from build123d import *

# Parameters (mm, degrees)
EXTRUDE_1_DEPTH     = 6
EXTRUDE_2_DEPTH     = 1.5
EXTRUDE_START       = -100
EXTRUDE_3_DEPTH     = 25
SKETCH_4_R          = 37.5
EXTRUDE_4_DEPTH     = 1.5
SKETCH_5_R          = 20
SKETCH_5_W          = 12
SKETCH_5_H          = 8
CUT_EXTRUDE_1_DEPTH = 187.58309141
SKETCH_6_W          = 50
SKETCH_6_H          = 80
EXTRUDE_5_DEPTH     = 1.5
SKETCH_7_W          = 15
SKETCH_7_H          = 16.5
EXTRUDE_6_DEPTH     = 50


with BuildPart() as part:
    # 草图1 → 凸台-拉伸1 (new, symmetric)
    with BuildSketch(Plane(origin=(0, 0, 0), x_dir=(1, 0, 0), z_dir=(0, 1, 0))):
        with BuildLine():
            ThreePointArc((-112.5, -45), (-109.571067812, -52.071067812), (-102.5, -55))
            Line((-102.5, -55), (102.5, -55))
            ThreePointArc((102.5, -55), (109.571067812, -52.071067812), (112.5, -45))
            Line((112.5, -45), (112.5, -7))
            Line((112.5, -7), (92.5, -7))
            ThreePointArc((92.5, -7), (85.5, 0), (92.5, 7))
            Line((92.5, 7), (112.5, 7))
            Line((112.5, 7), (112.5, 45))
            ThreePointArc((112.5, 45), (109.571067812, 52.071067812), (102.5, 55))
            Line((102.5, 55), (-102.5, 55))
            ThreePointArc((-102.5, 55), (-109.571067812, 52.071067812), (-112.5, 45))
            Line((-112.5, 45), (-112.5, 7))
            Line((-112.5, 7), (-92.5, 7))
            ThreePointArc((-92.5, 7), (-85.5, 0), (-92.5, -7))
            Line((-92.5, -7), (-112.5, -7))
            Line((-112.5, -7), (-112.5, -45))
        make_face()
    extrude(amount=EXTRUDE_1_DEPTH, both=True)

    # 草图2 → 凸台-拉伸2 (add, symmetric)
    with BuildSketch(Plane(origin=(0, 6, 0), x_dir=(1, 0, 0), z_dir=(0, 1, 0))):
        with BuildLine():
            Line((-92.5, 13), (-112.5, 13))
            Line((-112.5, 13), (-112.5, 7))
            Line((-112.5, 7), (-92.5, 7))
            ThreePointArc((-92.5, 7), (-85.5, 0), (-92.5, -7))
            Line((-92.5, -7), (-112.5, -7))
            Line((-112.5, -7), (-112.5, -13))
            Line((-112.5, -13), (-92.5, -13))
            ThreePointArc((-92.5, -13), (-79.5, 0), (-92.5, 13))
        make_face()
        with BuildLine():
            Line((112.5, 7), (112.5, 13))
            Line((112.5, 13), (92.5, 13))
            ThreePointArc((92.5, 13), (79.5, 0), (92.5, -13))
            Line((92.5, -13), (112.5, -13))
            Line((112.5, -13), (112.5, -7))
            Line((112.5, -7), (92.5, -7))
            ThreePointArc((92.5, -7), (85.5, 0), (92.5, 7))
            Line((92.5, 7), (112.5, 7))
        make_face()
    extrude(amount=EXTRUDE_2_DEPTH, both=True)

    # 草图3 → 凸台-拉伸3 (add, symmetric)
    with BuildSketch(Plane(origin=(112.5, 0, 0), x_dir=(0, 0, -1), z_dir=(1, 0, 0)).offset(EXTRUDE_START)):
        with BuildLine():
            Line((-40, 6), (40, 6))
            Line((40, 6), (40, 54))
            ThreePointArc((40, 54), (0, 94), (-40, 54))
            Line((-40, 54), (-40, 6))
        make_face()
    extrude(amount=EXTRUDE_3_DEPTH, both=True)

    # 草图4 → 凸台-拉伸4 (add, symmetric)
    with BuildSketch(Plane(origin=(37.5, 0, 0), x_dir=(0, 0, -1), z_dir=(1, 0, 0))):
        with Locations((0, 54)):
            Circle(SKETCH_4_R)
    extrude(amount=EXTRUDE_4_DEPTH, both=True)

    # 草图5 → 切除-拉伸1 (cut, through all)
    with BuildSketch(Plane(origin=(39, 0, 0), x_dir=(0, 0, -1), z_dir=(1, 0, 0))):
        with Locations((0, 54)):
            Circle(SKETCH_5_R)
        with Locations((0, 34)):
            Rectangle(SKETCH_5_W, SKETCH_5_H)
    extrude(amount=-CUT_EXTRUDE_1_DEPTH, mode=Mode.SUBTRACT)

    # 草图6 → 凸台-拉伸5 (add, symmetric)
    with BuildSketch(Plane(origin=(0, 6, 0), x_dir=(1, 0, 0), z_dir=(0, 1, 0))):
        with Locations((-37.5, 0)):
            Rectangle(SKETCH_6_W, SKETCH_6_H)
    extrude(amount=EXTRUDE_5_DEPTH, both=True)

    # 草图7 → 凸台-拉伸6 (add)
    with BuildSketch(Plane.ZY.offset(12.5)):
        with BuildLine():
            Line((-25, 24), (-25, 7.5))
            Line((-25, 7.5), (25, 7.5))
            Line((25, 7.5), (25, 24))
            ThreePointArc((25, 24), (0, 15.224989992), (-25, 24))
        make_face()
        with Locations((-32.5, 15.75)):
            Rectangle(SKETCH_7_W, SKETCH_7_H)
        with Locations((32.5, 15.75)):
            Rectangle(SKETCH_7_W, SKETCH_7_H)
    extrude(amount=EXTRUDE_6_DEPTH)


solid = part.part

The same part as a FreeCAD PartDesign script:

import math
import FreeCAD as App
import Part
import Sketcher
from FreeCAD import Vector

doc = App.newDocument("Part")
body = doc.addObject("PartDesign::Body", "Body")

# Sketch on XZ plane
sketch1 = body.newObject("Sketcher::SketchObject", "Sketch")
sketch1.AttachmentSupport = (doc.getObject("XZ_Plane"), [""])
sketch1.MapMode = "FlatFace"
sketch1.addGeometry(Part.ArcOfCircle(Part.Circle(Vector(-102, 45, 0), Vector(0, 0, 1), 10), math.radians(90), math.radians(180)), False)
sketch1.addGeometry(Part.LineSegment(Vector(-102, 55, 0), Vector(102, 55, 0)), False)
sketch1.addGeometry(Part.ArcOfCircle(Part.Circle(Vector(102, 45, 0), Vector(0, 0, 1), 10), math.radians(0), math.radians(90)), False)
sketch1.addGeometry(Part.LineSegment(Vector(112, 45, 0), Vector(112, 7, 0)), False)
sketch1.addGeometry(Part.LineSegment(Vector(112, 7, 0), Vector(92, 7, 0)), False)
sketch1.addGeometry(Part.ArcOfCircle(Part.Circle(Vector(92, 0, 0), Vector(0, 0, 1), 7), math.radians(90), math.radians(270)), False)
sketch1.addGeometry(Part.LineSegment(Vector(92, -7, 0), Vector(112, -7, 0)), False)
sketch1.addGeometry(Part.LineSegment(Vector(112, -7, 0), Vector(112, -45, 0)), False)
sketch1.addGeometry(Part.ArcOfCircle(Part.Circle(Vector(102, -45, 0), Vector(0, 0, 1), 10), math.radians(-90), math.radians(0)), False)
sketch1.addGeometry(Part.LineSegment(Vector(102, -55, 0), Vector(-102, -55, 0)), False)
sketch1.addGeometry(Part.ArcOfCircle(Part.Circle(Vector(-102, -45, 0), Vector(0, 0, 1), 10), math.radians(180), math.radians(270)), False)
sketch1.addGeometry(Part.LineSegment(Vector(-112, -45, 0), Vector(-112, -7, 0)), False)
sketch1.addGeometry(Part.LineSegment(Vector(-112, -7, 0), Vector(-92, -7, 0)), False)
sketch1.addGeometry(Part.ArcOfCircle(Part.Circle(Vector(-92, 0, 0), Vector(0, 0, 1), 7), math.radians(-90), math.radians(90)), False)
sketch1.addGeometry(Part.LineSegment(Vector(-92, 7, 0), Vector(-112, 7, 0)), False)
sketch1.addGeometry(Part.LineSegment(Vector(-112, 7, 0), Vector(-112, 45, 0)), False)
sketch1.addConstraint(Sketcher.Constraint("Tangent", 0, 1, 1, 1))
sketch1.addConstraint(Sketcher.Constraint("Tangent", 1, 2, 2, 2))
sketch1.addConstraint(Sketcher.Constraint("Tangent", 2, 1, 3, 1))
sketch1.addConstraint(Sketcher.Constraint("Coincident", 3, 2, 4, 1))
sketch1.addConstraint(Sketcher.Constraint("Tangent", 4, 2, 5, 1))
sketch1.addConstraint(Sketcher.Constraint("Tangent", 5, 2, 6, 1))
sketch1.addConstraint(Sketcher.Constraint("Coincident", 6, 2, 7, 1))
sketch1.addConstraint(Sketcher.Constraint("Tangent", 7, 2, 8, 2))
sketch1.addConstraint(Sketcher.Constraint("Tangent", 8, 1, 9, 1))
sketch1.addConstraint(Sketcher.Constraint("Tangent", 9, 2, 10, 2))
sketch1.addConstraint(Sketcher.Constraint("Tangent", 10, 1, 11, 1))
sketch1.addConstraint(Sketcher.Constraint("Coincident", 11, 2, 12, 1))
sketch1.addConstraint(Sketcher.Constraint("Tangent", 12, 2, 13, 1))
sketch1.addConstraint(Sketcher.Constraint("Tangent", 13, 2, 14, 1))
sketch1.addConstraint(Sketcher.Constraint("Coincident", 14, 2, 15, 1))
sketch1.addConstraint(Sketcher.Constraint("Tangent", 15, 2, 0, 2))
sketch1.addConstraint(Sketcher.Constraint("Horizontal", 1))
sketch1.addConstraint(Sketcher.Constraint("Vertical", 3))
sketch1.addConstraint(Sketcher.Constraint("Horizontal", 4))
sketch1.addConstraint(Sketcher.Constraint("Horizontal", 6))
sketch1.addConstraint(Sketcher.Constraint("Vertical", 7))
sketch1.addConstraint(Sketcher.Constraint("Horizontal", 9))
sketch1.addConstraint(Sketcher.Constraint("Vertical", 11))
sketch1.addConstraint(Sketcher.Constraint("Horizontal", 12))
sketch1.addConstraint(Sketcher.Constraint("Horizontal", 14))
sketch1.addConstraint(Sketcher.Constraint("Vertical", 15))
sketch1.addConstraint(Sketcher.Constraint("Equal", 0, 2))
sketch1.addConstraint(Sketcher.Constraint("Equal", 2, 8))
sketch1.addConstraint(Sketcher.Constraint("Equal", 8, 10))
sketch1.addConstraint(Sketcher.Constraint("Equal", 5, 13))
sketch1.addConstraint(Sketcher.Constraint("Symmetric", 0, 3, 8, 3, -1, 1))
sketch1.addConstraint(Sketcher.Constraint("Symmetric", 5, 3, 13, 3, -1, 1))
sketch1.addConstraint(Sketcher.Constraint("Symmetric", 6, 2, 11, 2, -2))
sketch1.addConstraint(Sketcher.Constraint("Vertical", 2, 3, 8, 3))
sketch1.addConstraint(Sketcher.Constraint("Radius", 0, 10.0))
sketch1.addConstraint(Sketcher.Constraint("Radius", 5, 7.0))
sketch1.addConstraint(Sketcher.Constraint("DistanceX", 1, 1, 1, 2, 205.0))
sketch1.addConstraint(Sketcher.Constraint("DistanceX", 4, 2, 4, 1, 20.0))
sketch1.addConstraint(Sketcher.Constraint("DistanceY", 3, 2, 3, 1, 38.0))
pad1 = body.newObject("PartDesign::Pad", "Pad")
pad1.Profile = sketch1
pad1.Length = 12
pad1.Midplane = True

# Sketch on XZ plane
sketch2 = body.newObject("Sketcher::SketchObject", "Sketch001")
sketch2.AttachmentSupport = (doc.getObject("XZ_Plane"), [""])
sketch2.MapMode = "FlatFace"
sketch2.AttachmentOffset = App.Placement(Vector(0, 0, -6), App.Rotation())
sketch2.addGeometry(Part.LineSegment(Vector(-92, -13, 0), Vector(-112, -13, 0)), False)
sketch2.addGeometry(Part.LineSegment(Vector(-112, -13, 0), Vector(-112, -7, 0)), False)
sketch2.addGeometry(Part.LineSegment(Vector(-112, -7, 0), Vector(-92, -7, 0)), False)
sketch2.addGeometry(Part.ArcOfCircle(Part.Circle(Vector(-92, 0, 0), Vector(0, 0, 1), 7), math.radians(-90), math.radians(90)), False)
sketch2.addGeometry(Part.LineSegment(Vector(-92, 7, 0), Vector(-112, 7, 0)), False)
sketch2.addGeometry(Part.LineSegment(Vector(-112, 7, 0), Vector(-112, 13, 0)), False)
sketch2.addGeometry(Part.LineSegment(Vector(-112, 13, 0), Vector(-92, 13, 0)), False)
sketch2.addGeometry(Part.ArcOfCircle(Part.Circle(Vector(-92, 0, 0), Vector(0, 0, 1), 13), math.radians(-90), math.radians(90)), False)
sketch2.addGeometry(Part.LineSegment(Vector(112, -7, 0), Vector(112, -13, 0)), False)
sketch2.addGeometry(Part.LineSegment(Vector(112, -13, 0), Vector(92, -13, 0)), False)
sketch2.addGeometry(Part.ArcOfCircle(Part.Circle(Vector(92, 0, 0), Vector(0, 0, 1), 13), math.radians(90), math.radians(270)), False)
sketch2.addGeometry(Part.LineSegment(Vector(92, 13, 0), Vector(112, 13, 0)), False)
sketch2.addGeometry(Part.LineSegment(Vector(112, 13, 0), Vector(112, 7, 0)), False)
sketch2.addGeometry(Part.LineSegment(Vector(112, 7, 0), Vector(92, 7, 0)), False)
sketch2.addGeometry(Part.ArcOfCircle(Part.Circle(Vector(92, 0, 0), Vector(0, 0, 1), 7), math.radians(90), math.radians(270)), False)
sketch2.addGeometry(Part.LineSegment(Vector(92, -7, 0), Vector(112, -7, 0)), False)
sketch2.addConstraint(Sketcher.Constraint("Coincident", 0, 2, 1, 1))
sketch2.addConstraint(Sketcher.Constraint("Coincident", 1, 2, 2, 1))
sketch2.addConstraint(Sketcher.Constraint("Tangent", 2, 2, 3, 1))
sketch2.addConstraint(Sketcher.Constraint("Tangent", 3, 2, 4, 1))
sketch2.addConstraint(Sketcher.Constraint("Coincident", 4, 2, 5, 1))
sketch2.addConstraint(Sketcher.Constraint("Coincident", 5, 2, 6, 1))
sketch2.addConstraint(Sketcher.Constraint("Tangent", 6, 2, 7, 2))
sketch2.addConstraint(Sketcher.Constraint("Tangent", 7, 1, 0, 1))
sketch2.addConstraint(Sketcher.Constraint("Coincident", 8, 2, 9, 1))
sketch2.addConstraint(Sketcher.Constraint("Tangent", 9, 2, 10, 2))
sketch2.addConstraint(Sketcher.Constraint("Tangent", 10, 1, 11, 1))
sketch2.addConstraint(Sketcher.Constraint("Coincident", 11, 2, 12, 1))
sketch2.addConstraint(Sketcher.Constraint("Coincident", 12, 2, 13, 1))
sketch2.addConstraint(Sketcher.Constraint("Tangent", 13, 2, 14, 1))
sketch2.addConstraint(Sketcher.Constraint("Tangent", 14, 2, 15, 1))
sketch2.addConstraint(Sketcher.Constraint("Coincident", 15, 2, 8, 1))
sketch2.addConstraint(Sketcher.Constraint("Horizontal", 0))
sketch2.addConstraint(Sketcher.Constraint("Vertical", 1))
sketch2.addConstraint(Sketcher.Constraint("Horizontal", 2))
sketch2.addConstraint(Sketcher.Constraint("Horizontal", 4))
sketch2.addConstraint(Sketcher.Constraint("Vertical", 5))
sketch2.addConstraint(Sketcher.Constraint("Horizontal", 6))
sketch2.addConstraint(Sketcher.Constraint("Vertical", 8))
sketch2.addConstraint(Sketcher.Constraint("Horizontal", 9))
sketch2.addConstraint(Sketcher.Constraint("Horizontal", 11))
sketch2.addConstraint(Sketcher.Constraint("Vertical", 12))
sketch2.addConstraint(Sketcher.Constraint("Horizontal", 13))
sketch2.addConstraint(Sketcher.Constraint("Horizontal", 15))
sketch2.addConstraint(Sketcher.Constraint("Coincident", 7, 3, 3, 3))
sketch2.addConstraint(Sketcher.Constraint("Coincident", 14, 3, 10, 3))
sketch2.addConstraint(Sketcher.Constraint("Equal", 7, 10))
sketch2.addConstraint(Sketcher.Constraint("Equal", 3, 14))
sketch2.addConstraint(Sketcher.Constraint("Symmetric", 3, 3, 10, 3, -1, 1))
sketch2.addConstraint(Sketcher.Constraint("Symmetric", 0, 2, 8, 2, -2))
sketch2.addConstraint(Sketcher.Constraint("Vertical", 1, 2, 4, 2))
sketch2.addConstraint(Sketcher.Constraint("Vertical", 8, 2, 11, 2))
sketch2.addConstraint(Sketcher.Constraint("Radius", 3, 7.0))
sketch2.addConstraint(Sketcher.Constraint("Radius", 7, 13.0))
sketch2.addConstraint(Sketcher.Constraint("DistanceX", 0, 2, 0, 1, 20.0))
sketch2.addConstraint(Sketcher.Constraint("DistanceX", 3, 3, 10, 3, 185.0))
pad2 = body.newObject("PartDesign::Pad", "Pad001")
pad2.Profile = sketch2
pad2.Length = 3
pad2.Midplane = True

# Sketch on YZ plane
sketch3 = body.newObject("Sketcher::SketchObject", "Sketch002")
sketch3.AttachmentSupport = (doc.getObject("YZ_Plane"), [""])
sketch3.MapMode = "FlatFace"
sketch3.AttachmentOffset = App.Placement(Vector(0, 0, 12.5), App.Rotation())
sketch3.addGeometry(Part.LineSegment(Vector(6, 40, 0), Vector(6, -40, 0)), False)
sketch3.addGeometry(Part.LineSegment(Vector(6, -40, 0), Vector(54, -40, 0)), False)
sketch3.addGeometry(Part.ArcOfCircle(Part.Circle(Vector(54, 0, 0), Vector(0, 0, 1), 40), math.radians(-90), math.radians(90)), False)
sketch3.addGeometry(Part.LineSegment(Vector(54, 40, 0), Vector(6, 40, 0)), False)
sketch3.addConstraint(Sketcher.Constraint("Coincident", 0, 2, 1, 1))
sketch3.addConstraint(Sketcher.Constraint("Tangent", 1, 2, 2, 1))
sketch3.addConstraint(Sketcher.Constraint("Tangent", 2, 2, 3, 1))
sketch3.addConstraint(Sketcher.Constraint("Coincident", 3, 2, 0, 1))
sketch3.addConstraint(Sketcher.Constraint("Vertical", 0))
sketch3.addConstraint(Sketcher.Constraint("Horizontal", 1))
sketch3.addConstraint(Sketcher.Constraint("Horizontal", 3))
sketch3.addConstraint(Sketcher.Constraint("PointOnObject", 2, 3, -1))
sketch3.addConstraint(Sketcher.Constraint("Radius", 2, 40.0))
sketch3.addConstraint(Sketcher.Constraint("DistanceX", 1, 1, 1, 2, 48.0))
sketch3.addConstraint(Sketcher.Constraint("DistanceX", -1, 1, 2, 3, 54.0))
pad3 = body.newObject("PartDesign::Pad", "Pad002")
pad3.Profile = sketch3
pad3.Length = 50
pad3.Midplane = True

# Sketch on YZ plane
sketch4 = body.newObject("Sketcher::SketchObject", "Sketch003")
sketch4.AttachmentSupport = (doc.getObject("YZ_Plane"), [""])
sketch4.MapMode = "FlatFace"
sketch4.AttachmentOffset = App.Placement(Vector(0, 0, 37.5), App.Rotation())
sketch4.addGeometry(Part.Circle(Vector(54, 0, 0), Vector(0, 0, 1), 38), False)
sketch4.addConstraint(Sketcher.Constraint("PointOnObject", 0, 3, -1))
sketch4.addConstraint(Sketcher.Constraint("Diameter", 0, 75.0))
sketch4.addConstraint(Sketcher.Constraint("DistanceX", -1, 1, 0, 3, 54.0))
pad4 = body.newObject("PartDesign::Pad", "Pad003")
pad4.Profile = sketch4
pad4.Length = 3
pad4.Midplane = True

# Sketch on YZ plane
sketch5 = body.newObject("Sketcher::SketchObject", "Sketch004")
sketch5.AttachmentSupport = (doc.getObject("YZ_Plane"), [""])
sketch5.MapMode = "FlatFace"
sketch5.AttachmentOffset = App.Placement(Vector(0, 0, 39), App.Rotation())
sketch5.addGeometry(Part.ArcOfCircle(Part.Circle(Vector(54, 0, 0), Vector(0, 0, 1), 20), math.radians(-163), math.radians(163)), False)
sketch5.addGeometry(Part.LineSegment(Vector(34.9, 6, 0), Vector(30, 6, 0)), False)
sketch5.addGeometry(Part.LineSegment(Vector(30, 6, 0), Vector(30, -6, 0)), False)
sketch5.addGeometry(Part.LineSegment(Vector(30, -6, 0), Vector(34.9, -6, 0)), False)
sketch5.addConstraint(Sketcher.Constraint("Coincident", 0, 2, 1, 1))
sketch5.addConstraint(Sketcher.Constraint("Coincident", 1, 2, 2, 1))
sketch5.addConstraint(Sketcher.Constraint("Coincident", 2, 2, 3, 1))
sketch5.addConstraint(Sketcher.Constraint("Coincident", 3, 2, 0, 1))
sketch5.addConstraint(Sketcher.Constraint("Horizontal", 1))
sketch5.addConstraint(Sketcher.Constraint("Vertical", 2))
sketch5.addConstraint(Sketcher.Constraint("Horizontal", 3))
sketch5.addConstraint(Sketcher.Constraint("Symmetric", 0, 2, 3, 2, -1))
sketch5.addConstraint(Sketcher.Constraint("Radius", 0, 20.0))
sketch5.addConstraint(Sketcher.Constraint("DistanceY", 2, 2, 2, 1, 12.0))
sketch5.addConstraint(Sketcher.Constraint("DistanceX", -1, 1, 0, 3, 54.0))
sketch5.addConstraint(Sketcher.Constraint("DistanceX", -1, 1, 1, 2, 30.0))
pocket1 = body.newObject("PartDesign::Pocket", "Pocket")
pocket1.Profile = sketch5
pocket1.Type = "ThroughAll"

# Sketch on XZ plane
sketch6 = body.newObject("Sketcher::SketchObject", "Sketch005")
sketch6.AttachmentSupport = (doc.getObject("XZ_Plane"), [""])
sketch6.MapMode = "FlatFace"
sketch6.AttachmentOffset = App.Placement(Vector(0, 0, -6), App.Rotation())
sketch6.addGeometry(Part.LineSegment(Vector(-62, -40, 0), Vector(-62, 40, 0)), False)
sketch6.addGeometry(Part.LineSegment(Vector(-62, 40, 0), Vector(-12, 40, 0)), False)
sketch6.addGeometry(Part.LineSegment(Vector(-12, 40, 0), Vector(-12, -40, 0)), False)
sketch6.addGeometry(Part.LineSegment(Vector(-12, -40, 0), Vector(-62, -40, 0)), False)
sketch6.addConstraint(Sketcher.Constraint("Coincident", 0, 2, 1, 1))
sketch6.addConstraint(Sketcher.Constraint("Coincident", 1, 2, 2, 1))
sketch6.addConstraint(Sketcher.Constraint("Coincident", 2, 2, 3, 1))
sketch6.addConstraint(Sketcher.Constraint("Coincident", 3, 2, 0, 1))
sketch6.addConstraint(Sketcher.Constraint("Vertical", 0))
sketch6.addConstraint(Sketcher.Constraint("Horizontal", 1))
sketch6.addConstraint(Sketcher.Constraint("Vertical", 2))
sketch6.addConstraint(Sketcher.Constraint("Horizontal", 3))
sketch6.addConstraint(Sketcher.Constraint("DistanceX", 1, 1, 1, 2, 50.0))
sketch6.addConstraint(Sketcher.Constraint("DistanceY", 0, 1, 0, 2, 80.0))
sketch6.addConstraint(Sketcher.Constraint("DistanceY", -1, 1, 0, 2, 40.0))
sketch6.addConstraint(Sketcher.Constraint("DistanceX", 0, 2, -1, 1, 62.5))
pad5 = body.newObject("PartDesign::Pad", "Pad004")
pad5.Profile = sketch6
pad5.Length = 3
pad5.Midplane = True

# Sketch on YZ plane
sketch7 = body.newObject("Sketcher::SketchObject", "Sketch006")
sketch7.AttachmentSupport = (doc.getObject("YZ_Plane"), [""])
sketch7.MapMode = "FlatFace"
sketch7.AttachmentOffset = App.Placement(Vector(0, 0, -12.5), App.Rotation())
sketch7.addGeometry(Part.ArcOfCircle(Part.Circle(Vector(55, 0, 0), Vector(0, 0, 1), 40), math.radians(141), math.radians(219)), False)
sketch7.addGeometry(Part.LineSegment(Vector(24, -25, 0), Vector(24, -40, 0)), False)
sketch7.addGeometry(Part.LineSegment(Vector(24, -40, 0), Vector(8, -40, 0)), False)
sketch7.addGeometry(Part.LineSegment(Vector(8, -40, 0), Vector(8, 40, 0)), False)
sketch7.addGeometry(Part.LineSegment(Vector(8, 40, 0), Vector(24, 40, 0)), False)
sketch7.addGeometry(Part.LineSegment(Vector(24, 40, 0), Vector(24, 25, 0)), False)
sketch7.addConstraint(Sketcher.Constraint("Coincident", 0, 2, 1, 1))
sketch7.addConstraint(Sketcher.Constraint("Coincident", 1, 2, 2, 1))
sketch7.addConstraint(Sketcher.Constraint("Coincident", 2, 2, 3, 1))
sketch7.addConstraint(Sketcher.Constraint("Coincident", 3, 2, 4, 1))
sketch7.addConstraint(Sketcher.Constraint("Coincident", 4, 2, 5, 1))
sketch7.addConstraint(Sketcher.Constraint("Coincident", 5, 2, 0, 1))
sketch7.addConstraint(Sketcher.Constraint("Vertical", 1))
sketch7.addConstraint(Sketcher.Constraint("Horizontal", 2))
sketch7.addConstraint(Sketcher.Constraint("Vertical", 3))
sketch7.addConstraint(Sketcher.Constraint("Horizontal", 4))
sketch7.addConstraint(Sketcher.Constraint("Vertical", 5))
sketch7.addConstraint(Sketcher.Constraint("Symmetric", 1, 2, 4, 2, -1))
sketch7.addConstraint(Sketcher.Constraint("PointOnObject", 0, 3, -1))
sketch7.addConstraint(Sketcher.Constraint("Radius", 0, 40.0))
sketch7.addConstraint(Sketcher.Constraint("DistanceY", 1, 2, 1, 1, 15.0))
sketch7.addConstraint(Sketcher.Constraint("DistanceY", 3, 1, 3, 2, 80.0))
sketch7.addConstraint(Sketcher.Constraint("DistanceX", 2, 2, 2, 1, 16.5))
sketch7.addConstraint(Sketcher.Constraint("DistanceX", -1, 1, 0, 2, 24.0))
pad6 = body.newObject("PartDesign::Pad", "Pad005")
pad6.Profile = sketch7
pad6.Length = 50
pad6.Reversed = True

doc.recompute()
